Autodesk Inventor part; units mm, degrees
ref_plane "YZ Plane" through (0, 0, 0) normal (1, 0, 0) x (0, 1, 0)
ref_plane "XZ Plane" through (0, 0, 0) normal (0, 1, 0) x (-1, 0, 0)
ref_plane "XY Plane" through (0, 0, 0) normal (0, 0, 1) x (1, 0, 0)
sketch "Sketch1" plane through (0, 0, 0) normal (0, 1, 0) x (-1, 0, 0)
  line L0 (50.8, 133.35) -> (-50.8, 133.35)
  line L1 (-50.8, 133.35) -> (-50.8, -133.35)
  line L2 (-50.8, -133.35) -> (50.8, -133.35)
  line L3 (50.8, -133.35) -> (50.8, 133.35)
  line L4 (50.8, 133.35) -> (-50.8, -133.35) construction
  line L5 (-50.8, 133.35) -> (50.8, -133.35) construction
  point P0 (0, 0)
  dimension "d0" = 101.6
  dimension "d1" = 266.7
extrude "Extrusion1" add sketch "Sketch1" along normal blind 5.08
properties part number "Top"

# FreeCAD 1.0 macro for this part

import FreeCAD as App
import Part
import Sketcher

V = App.Vector
Q = App.Units.Quantity

doc = App.newDocument("Part")
body = doc.addObject("PartDesign::Body", "Body")

sketch1 = body.newObject("Sketcher::SketchObject", "Sketch")
sketch1.AttachmentSupport = (doc.getObject("XZ_Plane"), [""])
sketch1.MapMode = "FlatFace"
sketch1.addGeometry([
    Part.LineSegment(V(-51, -133, 0), V(-51, 133, 0)),
    Part.LineSegment(V(-51, 133, 0), V(51, 133, 0)),
    Part.LineSegment(V(51, 133, 0), V(51, -133, 0)),
    Part.LineSegment(V(51, -133, 0), V(-51, -133, 0)),
], False)
sketch1.addConstraint([
    Sketcher.Constraint("Coincident", 0, 2, 1, 1),
    Sketcher.Constraint("Coincident", 1, 2, 2, 1),
    Sketcher.Constraint("Coincident", 2, 2, 3, 1),
    Sketcher.Constraint("Coincident", 3, 2, 0, 1),
    Sketcher.Constraint("Vertical", 0),
    Sketcher.Constraint("Horizontal", 1),
    Sketcher.Constraint("Vertical", 2),
    Sketcher.Constraint("Horizontal", 3),
    Sketcher.Constraint("Symmetric", 0, 2, 2, 2, -1, 1),
    Sketcher.Constraint("DistanceX", 1, 1, 1, 2, Q("4 in")),
    Sketcher.Constraint("DistanceY", 0, 1, 0, 2, Q("10.5 in")),
])
pad1 = body.newObject("PartDesign::Pad", "Pad")
pad1.Profile = sketch1
pad1.Length = Q("0.2 in")
pad1.Reversed = True

doc.recompute()
